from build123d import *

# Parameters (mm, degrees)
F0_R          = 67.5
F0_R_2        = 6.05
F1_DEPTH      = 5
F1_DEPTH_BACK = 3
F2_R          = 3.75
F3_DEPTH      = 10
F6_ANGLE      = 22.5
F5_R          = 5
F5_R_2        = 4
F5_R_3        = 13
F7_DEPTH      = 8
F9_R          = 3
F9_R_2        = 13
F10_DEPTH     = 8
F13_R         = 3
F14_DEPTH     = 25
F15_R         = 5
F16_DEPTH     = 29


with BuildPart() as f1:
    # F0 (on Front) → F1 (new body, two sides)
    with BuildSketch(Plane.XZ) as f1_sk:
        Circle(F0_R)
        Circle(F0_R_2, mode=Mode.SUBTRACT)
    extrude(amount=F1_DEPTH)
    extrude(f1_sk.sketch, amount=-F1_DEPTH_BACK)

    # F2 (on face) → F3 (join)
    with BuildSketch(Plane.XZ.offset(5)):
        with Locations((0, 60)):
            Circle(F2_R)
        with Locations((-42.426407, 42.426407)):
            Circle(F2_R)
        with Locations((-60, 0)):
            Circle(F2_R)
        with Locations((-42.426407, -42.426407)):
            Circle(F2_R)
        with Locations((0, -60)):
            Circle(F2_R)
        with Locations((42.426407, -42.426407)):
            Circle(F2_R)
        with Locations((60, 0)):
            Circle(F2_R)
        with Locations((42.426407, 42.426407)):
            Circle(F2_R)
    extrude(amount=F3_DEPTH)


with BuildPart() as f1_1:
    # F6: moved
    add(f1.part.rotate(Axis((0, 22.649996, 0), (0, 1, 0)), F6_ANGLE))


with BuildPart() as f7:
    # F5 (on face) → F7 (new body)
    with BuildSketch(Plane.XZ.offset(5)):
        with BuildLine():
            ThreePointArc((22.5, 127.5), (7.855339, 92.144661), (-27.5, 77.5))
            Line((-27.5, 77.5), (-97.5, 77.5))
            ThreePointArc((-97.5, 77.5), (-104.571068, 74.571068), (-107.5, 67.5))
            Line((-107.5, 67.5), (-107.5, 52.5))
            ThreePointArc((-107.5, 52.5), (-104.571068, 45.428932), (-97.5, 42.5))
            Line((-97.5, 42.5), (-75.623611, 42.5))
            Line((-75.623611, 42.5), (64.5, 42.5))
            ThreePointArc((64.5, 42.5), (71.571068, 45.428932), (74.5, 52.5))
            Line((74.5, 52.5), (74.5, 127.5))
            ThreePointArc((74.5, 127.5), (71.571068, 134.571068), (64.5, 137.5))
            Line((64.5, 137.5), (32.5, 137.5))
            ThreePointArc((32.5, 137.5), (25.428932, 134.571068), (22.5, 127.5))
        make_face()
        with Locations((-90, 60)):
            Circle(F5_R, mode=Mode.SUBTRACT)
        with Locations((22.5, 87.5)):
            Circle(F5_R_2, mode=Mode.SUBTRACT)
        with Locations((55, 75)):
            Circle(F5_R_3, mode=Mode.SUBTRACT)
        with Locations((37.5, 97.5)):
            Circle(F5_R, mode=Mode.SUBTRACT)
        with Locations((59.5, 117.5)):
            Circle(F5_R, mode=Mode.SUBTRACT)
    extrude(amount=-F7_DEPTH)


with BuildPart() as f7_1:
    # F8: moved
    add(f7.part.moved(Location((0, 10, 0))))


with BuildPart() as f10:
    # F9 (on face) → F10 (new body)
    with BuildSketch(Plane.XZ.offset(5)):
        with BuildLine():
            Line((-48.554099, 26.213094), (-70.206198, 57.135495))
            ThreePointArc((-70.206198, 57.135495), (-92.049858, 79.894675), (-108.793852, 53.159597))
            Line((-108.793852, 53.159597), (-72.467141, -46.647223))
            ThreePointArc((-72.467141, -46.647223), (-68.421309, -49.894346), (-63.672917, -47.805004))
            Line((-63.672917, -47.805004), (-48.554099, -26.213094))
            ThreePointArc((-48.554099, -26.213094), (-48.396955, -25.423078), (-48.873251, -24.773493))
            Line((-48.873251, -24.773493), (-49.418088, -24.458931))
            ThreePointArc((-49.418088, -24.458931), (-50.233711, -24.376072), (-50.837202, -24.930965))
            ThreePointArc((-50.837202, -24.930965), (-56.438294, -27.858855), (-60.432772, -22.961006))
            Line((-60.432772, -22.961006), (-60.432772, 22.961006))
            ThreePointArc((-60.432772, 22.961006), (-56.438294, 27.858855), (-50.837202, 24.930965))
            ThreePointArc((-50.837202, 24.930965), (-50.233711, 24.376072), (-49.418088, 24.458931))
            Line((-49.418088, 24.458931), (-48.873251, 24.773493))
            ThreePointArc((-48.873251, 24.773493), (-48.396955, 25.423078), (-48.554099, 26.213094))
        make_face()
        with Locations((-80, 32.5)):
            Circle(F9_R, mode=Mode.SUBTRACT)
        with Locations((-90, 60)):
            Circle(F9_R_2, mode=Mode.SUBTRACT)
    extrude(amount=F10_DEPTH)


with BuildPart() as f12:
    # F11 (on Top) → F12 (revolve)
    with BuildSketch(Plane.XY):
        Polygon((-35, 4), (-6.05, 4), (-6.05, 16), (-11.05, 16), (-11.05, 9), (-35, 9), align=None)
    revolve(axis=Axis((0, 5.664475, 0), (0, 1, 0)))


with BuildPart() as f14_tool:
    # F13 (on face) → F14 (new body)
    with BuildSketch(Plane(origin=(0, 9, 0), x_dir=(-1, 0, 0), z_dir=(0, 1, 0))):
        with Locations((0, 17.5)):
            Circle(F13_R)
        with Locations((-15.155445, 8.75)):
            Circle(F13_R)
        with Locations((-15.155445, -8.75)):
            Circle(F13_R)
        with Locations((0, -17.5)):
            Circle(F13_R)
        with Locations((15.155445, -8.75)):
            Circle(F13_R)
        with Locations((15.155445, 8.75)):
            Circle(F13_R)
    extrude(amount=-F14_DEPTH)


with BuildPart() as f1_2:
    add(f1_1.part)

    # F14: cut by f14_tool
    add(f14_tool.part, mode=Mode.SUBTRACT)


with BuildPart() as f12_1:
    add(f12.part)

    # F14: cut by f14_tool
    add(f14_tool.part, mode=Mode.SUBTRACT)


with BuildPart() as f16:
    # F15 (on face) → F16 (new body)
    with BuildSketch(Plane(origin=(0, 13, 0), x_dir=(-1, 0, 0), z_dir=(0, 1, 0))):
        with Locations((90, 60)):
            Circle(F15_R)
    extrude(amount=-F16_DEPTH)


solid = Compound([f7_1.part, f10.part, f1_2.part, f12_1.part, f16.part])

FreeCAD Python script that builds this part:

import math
import FreeCAD as App
import Part
import Sketcher

V = App.Vector
Q = App.Units.Quantity

doc = App.newDocument("Part")
body = doc.addObject("PartDesign::Body", "Body")

# Sketch on XZ plane
sketch1 = body.newObject("Sketcher::SketchObject", "Sketch")
sketch1.AttachmentSupport = (doc.getObject("XZ_Plane"), [""])
sketch1.MapMode = "FlatFace"
sketch1.addGeometry(Part.Circle(V(0, 0, 0), V(0, 0, 1), 68), False)
sketch1.addGeometry(Part.Circle(V(0, 0, 0), V(0, 0, 1), 6), False)
sketch1.addConstraint(Sketcher.Constraint("Coincident", 0, 3, -1, 1))
sketch1.addConstraint(Sketcher.Constraint("Coincident", 1, 3, -1, 1))
sketch1.addConstraint(Sketcher.Constraint("Diameter", 0, 135.0))
sketch1.addConstraint(Sketcher.Constraint("Diameter", 1, 12.1))
pad1 = body.newObject("PartDesign::Pad", "Pad")
pad1.Profile = sketch1
pad1.Type = "TwoLengths"
pad1.Length = 5
pad1.Length2 = 3

# Sketch on XZ plane
sketch2 = body.newObject("Sketcher::SketchObject", "Sketch001")
sketch2.AttachmentSupport = (doc.getObject("XZ_Plane"), [""])
sketch2.MapMode = "FlatFace"
sketch2.AttachmentOffset = App.Placement(V(0, 0, 5), App.Rotation())
sketch2.addGeometry(Part.Circle(V(0, 60, 0), V(0, 0, 1), 3.8), False)
sketch2.addGeometry(Part.Circle(V(-42.4, 42.4, 0), V(0, 0, 1), 3.8), False)
sketch2.addGeometry(Part.Circle(V(-60, 0, 0), V(0, 0, 1), 3.8), False)
sketch2.addGeometry(Part.Circle(V(-42.4, -42.4, 0), V(0, 0, 1), 3.8), False)
sketch2.addGeometry(Part.Circle(V(0, -60, 0), V(0, 0, 1), 3.8), False)
sketch2.addGeometry(Part.Circle(V(42.4, -42.4, 0), V(0, 0, 1), 3.8), False)
sketch2.addGeometry(Part.Circle(V(60, 0, 0), V(0, 0, 1), 3.8), False)
sketch2.addGeometry(Part.Circle(V(42.4, 42.4, 0), V(0, 0, 1), 3.8), False)
sketch2.addConstraint(Sketcher.Constraint("Equal", 0, 1))
sketch2.addConstraint(Sketcher.Constraint("Equal", 1, 2))
sketch2.addConstraint(Sketcher.Constraint("Equal", 2, 3))
sketch2.addConstraint(Sketcher.Constraint("Equal", 3, 4))
sketch2.addConstraint(Sketcher.Constraint("Equal", 4, 5))
sketch2.addConstraint(Sketcher.Constraint("Equal", 5, 6))
sketch2.addConstraint(Sketcher.Constraint("Equal", 6, 7))
sketch2.addConstraint(Sketcher.Constraint("Symmetric", 0, 3, 4, 3, -1, 1))
sketch2.addConstraint(Sketcher.Constraint("Symmetric", 1, 3, 5, 3, -1, 1))
sketch2.addConstraint(Sketcher.Constraint("Symmetric", 2, 3, 6, 3, -1, 1))
sketch2.addConstraint(Sketcher.Constraint("Symmetric", 3, 3, 7, 3, -1, 1))
sketch2.addConstraint(Sketcher.Constraint("Symmetric", 3, 3, 5, 3, -2))
sketch2.addConstraint(Sketcher.Constraint("PointOnObject", 0, 3, -2))
sketch2.addConstraint(Sketcher.Constraint("PointOnObject", 2, 3, -1))
sketch2.addConstraint(Sketcher.Constraint("Diameter", 0, 7.5))
sketch2.addConstraint(Sketcher.Constraint("DistanceY", -1, 1, 0, 3, 60.0))
sketch2.addConstraint(Sketcher.Constraint("DistanceX", 2, 3, -1, 1, 60.0))
sketch2.addConstraint(Sketcher.Constraint("DistanceX", 1, 3, -1, 1, 42.426407))
sketch2.addConstraint(Sketcher.Constraint("DistanceY", -1, 1, 1, 3, 42.426407))
pad2 = body.newObject("PartDesign::Pad", "Pad001")
pad2.Profile = sketch2
pad2.Length = 10
body2 = doc.addObject("PartDesign::Body", "Body001")
doc.recompute()

body.Placement = App.Placement(V(0, 0, 0), App.Rotation(V(0, 1, 0), 22.5))
boolean = body2.newObject("PartDesign::Boolean", "Boolean")
boolean.Type = "Fuse"
boolean.addObjects([body])
body3 = doc.addObject("PartDesign::Body", "Body002")

# Sketch on XZ plane
sketch3 = body3.newObject("Sketcher::SketchObject", "Sketch002")
sketch3.AttachmentSupport = (doc.getObject("XZ_Plane002"), [""])
sketch3.MapMode = "FlatFace"
sketch3.AttachmentOffset = App.Placement(V(0, 0, 5), App.Rotation())
sketch3.addGeometry(Part.ArcOfCircle(Part.Circle(V(-27.5, 127.5, 0), V(0, 0, 1), 50), math.radians(-90), math.radians(0)), False)
sketch3.addGeometry(Part.LineSegment(V(-27.5, 77.5, 0), V(-97.5, 77.5, 0)), False)
sketch3.addGeometry(Part.ArcOfCircle(Part.Circle(V(-97.5, 67.5, 0), V(0, 0, 1), 10), math.radians(90), math.radians(180)), False)
sketch3.addGeometry(Part.LineSegment(V(-107.5, 67.5, 0), V(-107.5, 52.5, 0)), False)
sketch3.addGeometry(Part.ArcOfCircle(Part.Circle(V(-97.5, 52.5, 0), V(0, 0, 1), 10), math.radians(180), math.radians(270)), False)
sketch3.addGeometry(Part.LineSegment(V(-97.5, 42.5, 0), V(64.5, 42.5, 0)), False)
sketch3.addGeometry(Part.ArcOfCircle(Part.Circle(V(64.5, 52.5, 0), V(0, 0, 1), 10), math.radians(-90), math.radians(0)), False)
sketch3.addGeometry(Part.LineSegment(V(74.5, 52.5, 0), V(74.5, 127.5, 0)), False)
sketch3.addGeometry(Part.ArcOfCircle(Part.Circle(V(64.5, 127.5, 0), V(0, 0, 1), 10), math.radians(0), math.radians(90)), False)
sketch3.addGeometry(Part.LineSegment(V(64.5, 137.5, 0), V(32.5, 137.5, 0)), False)
sketch3.addGeometry(Part.ArcOfCircle(Part.Circle(V(32.5, 127.5, 0), V(0, 0, 1), 10), math.radians(90), math.radians(180)), False)
sketch3.addGeometry(Part.Circle(V(-90, 60, 0), V(0, 0, 1), 5), False)
sketch3.addGeometry(Part.Circle(V(22.5, 87.5, 0), V(0, 0, 1), 4), False)
sketch3.addGeometry(Part.Circle(V(55, 75, 0), V(0, 0, 1), 13), False)
sketch3.addGeometry(Part.Circle(V(37.5, 97.5, 0), V(0, 0, 1), 5), False)
sketch3.addGeometry(Part.Circle(V(59.5, 117.5, 0), V(0, 0, 1), 5), False)
sketch3.addConstraint(Sketcher.Constraint("Tangent", 0, 1, 1, 1))
sketch3.addConstraint(Sketcher.Constraint("Tangent", 1, 2, 2, 1))
sketch3.addConstraint(Sketcher.Constraint("Tangent", 2, 2, 3, 1))
sketch3.addConstraint(Sketcher.Constraint("Tangent", 3, 2, 4, 1))
sketch3.addConstraint(Sketcher.Constraint("Tangent", 4, 2, 5, 1))
sketch3.addConstraint(Sketcher.Constraint("Tangent", 5, 2, 6, 1))
sketch3.addConstraint(Sketcher.Constraint("Tangent", 6, 2, 7, 1))
sketch3.addConstraint(Sketcher.Constraint("Tangent", 7, 2, 8, 1))
sketch3.addConstraint(Sketcher.Constraint("Tangent", 8, 2, 9, 1))
sketch3.addConstraint(Sketcher.Constraint("Tangent", 9, 2, 10, 1))
sketch3.addConstraint(Sketcher.Constraint("Tangent", 10, 2, 0, 2))
sketch3.addConstraint(Sketcher.Constraint("Horizontal", 1))
sketch3.addConstraint(Sketcher.Constraint("Vertical", 3))
sketch3.addConstraint(Sketcher.Constraint("Horizontal", 5))
sketch3.addConstraint(Sketcher.Constraint("Vertical", 7))
sketch3.addConstraint(Sketcher.Constraint("Horizontal", 9))
sketch3.addConstraint(Sketcher.Constraint("Equal", 2, 4))
sketch3.addConstraint(Sketcher.Constraint("Equal", 4, 6))
sketch3.addConstraint(Sketcher.Constraint("Equal", 6, 8))
sketch3.addConstraint(Sketcher.Constraint("Equal", 8, 10))
sketch3.addConstraint(Sketcher.Constraint("Equal", 11, 14))
sketch3.addConstraint(Sketcher.Constraint("Equal", 14, 15))
sketch3.addConstraint(Sketcher.Constraint("Horizontal", 0, 3, 8, 3))
sketch3.addConstraint(Sketcher.Constraint("Vertical", 12, 3, 10, 2))
sketch3.addConstraint(Sketcher.Constraint("Diameter", 11, 10.0))
sketch3.addConstraint(Sketcher.Constraint("Diameter", 12, 8.0))
sketch3.addConstraint(Sketcher.Constraint("Diameter", 13, 26.0))
sketch3.addConstraint(Sketcher.Constraint("Radius", 0, 50.0))
sketch3.addConstraint(Sketcher.Constraint("Radius", 2, 9.999999))
sketch3.addConstraint(Sketcher.Constraint("DistanceX", 1, 2, 1, 1, 70.0))
sketch3.addConstraint(Sketcher.Constraint("DistanceX", 5, 1, 5, 2, 162.0))
sketch3.addConstraint(Sketcher.Constraint("DistanceY", 3, 2, 3, 1, 15.0))
sketch3.addConstraint(Sketcher.Constraint("DistanceX", 11, 3, -1, 1, 90.0))
sketch3.addConstraint(Sketcher.Constraint("DistanceY", -1, 1, 11, 3, 60.0))
sketch3.addConstraint(Sketcher.Constraint("DistanceX", -1, 1, 13, 3, 55.0))
sketch3.addConstraint(Sketcher.Constraint("DistanceY", -1, 1, 13, 3, 75.0))
sketch3.addConstraint(Sketcher.Constraint("DistanceY", 12, 3, 10, 3, 40.000001))
sketch3.addConstraint(Sketcher.Constraint("DistanceX", 12, 3, 14, 3, 15.0))
sketch3.addConstraint(Sketcher.Constraint("DistanceY", 12, 3, 14, 3, 10.0))
sketch3.addConstraint(Sketcher.Constraint("DistanceX", 15, 3, 8, 3, 5.000001))
sketch3.addConstraint(Sketcher.Constraint("DistanceY", 15, 3, 8, 3, 10.000001))
sketch3.addConstraint(Sketcher.Constraint("DistanceX", 0, 3, -1, 1, 27.5))
sketch3.addConstraint(Sketcher.Constraint("DistanceY", -1, 1, 0, 3, 127.5))
pad3 = body3.newObject("PartDesign::Pad", "Pad002")
pad3.Profile = sketch3
pad3.Length = 8
pad3.Reversed = True
body4 = doc.addObject("PartDesign::Body", "Body003")
doc.recompute()

body3.Placement = App.Placement(V(0, 10, 0), App.Rotation(V(0, 0, 1), 0))
boolean2 = body4.newObject("PartDesign::Boolean", "Boolean001")
boolean2.Type = "Fuse"
boolean2.addObjects([body3])
body5 = doc.addObject("PartDesign::Body", "Body004")

# Sketch on XZ plane
sketch4 = body5.newObject("Sketcher::SketchObject", "Sketch003")
sketch4.AttachmentSupport = (doc.getObject("XZ_Plane004"), [""])
sketch4.MapMode = "FlatFace"
sketch4.AttachmentOffset = App.Placement(V(0, 0, 5), App.Rotation())
sketch4.addGeometry(Part.LineSegment(V(-48.6, 26.2, 0), V(-70.2, 57.1, 0)), False)
sketch4.addGeometry(Part.ArcOfCircle(Part.Circle(V(-90, 60, 0), V(0, 0, 1), 20), math.radians(-8), math.radians(200)), False)
sketch4.addGeometry(Part.LineSegment(V(-108.8, 53.2, 0), V(-72.5, -46.6, 0)), False)
sketch4.addGeometry(Part.ArcOfCircle(Part.Circle(V(-67.8, -44.9, 0), V(0, 0, 1), 5), math.radians(-160), math.radians(-35)), False)
sketch4.addGeometry(Part.LineSegment(V(-63.7, -47.8, 0), V(-48.6, -26.2, 0)), False)
sketch4.addGeometry(Part.ArcOfCircle(Part.Circle(V(-49.4, -25.6, 0), V(0, 0, 1), 1), math.radians(-35), math.radians(60)), False)
sketch4.addGeometry(Part.LineSegment(V(-48.9, -24.8, 0), V(-49.4, -24.5, 0)), False)
sketch4.addGeometry(Part.ArcOfCircle(Part.Circle(V(-49.9, -25.3, 0), V(0, 0, 1), 1), math.radians(60), math.radians(157)), False)
sketch4.addGeometry(Part.ArcOfCircle(Part.Circle(V(-55.4, -23, 0), V(0, 0, 1), 5), math.radians(-180), math.radians(-23)), False)
sketch4.addGeometry(Part.LineSegment(V(-60.4, -23, 0), V(-60.4, 23, 0)), False)
sketch4.addGeometry(Part.ArcOfCircle(Part.Circle(V(-55.4, 23, 0), V(0, 0, 1), 5), math.radians(23), math.radians(180)), False)
sketch4.addGeometry(Part.ArcOfCircle(Part.Circle(V(-49.9, 25.3, 0), V(0, 0, 1), 1), math.radians(-157), math.radians(-60)), False)
sketch4.addGeometry(Part.LineSegment(V(-49.4, 24.5, 0), V(-48.9, 24.8, 0)), False)
sketch4.addGeometry(Part.ArcOfCircle(Part.Circle(V(-49.4, 25.6, 0), V(0, 0, 1), 1), math.radians(-60), math.radians(35)), False)
sketch4.addGeometry(Part.Circle(V(-80, 32.5, 0), V(0, 0, 1), 3), False)
sketch4.addGeometry(Part.Circle(V(-90, 60, 0), V(0, 0, 1), 13), False)
sketch4.addConstraint(Sketcher.Constraint("Coincident", 0, 2, 1, 1))
sketch4.addConstraint(Sketcher.Constraint("Tangent", 1, 2, 2, 1))
sketch4.addConstraint(Sketcher.Constraint("Tangent", 2, 2, 3, 1))
sketch4.addConstraint(Sketcher.Constraint("Tangent", 3, 2, 4, 1))
sketch4.addConstraint(Sketcher.Constraint("Tangent", 4, 2, 5, 1))
sketch4.addConstraint(Sketcher.Constraint("Tangent", 5, 2, 6, 1))
sketch4.addConstraint(Sketcher.Constraint("Tangent", 6, 2, 7, 1))
sketch4.addConstraint(Sketcher.Constraint("Tangent", 7, 2, 8, 2))
sketch4.addConstraint(Sketcher.Constraint("Tangent", 8, 1, 9, 1))
sketch4.addConstraint(Sketcher.Constraint("Tangent", 9, 2, 10, 2))
sketch4.addConstraint(Sketcher.Constraint("Tangent", 10, 1, 11, 1))
sketch4.addConstraint(Sketcher.Constraint("Tangent", 11, 2, 12, 1))
sketch4.addConstraint(Sketcher.Constraint("Tangent", 12, 2, 13, 1))
sketch4.addConstraint(Sketcher.Constraint("Tangent", 13, 2, 0, 1))
sketch4.addConstraint(Sketcher.Constraint("Vertical", 9))
sketch4.addConstraint(Sketcher.Constraint("Coincident", 15, 3, 1, 3))
sketch4.addConstraint(Sketcher.Constraint("Equal", 5, 7))
sketch4.addConstraint(Sketcher.Constraint("Equal", 3, 8))
sketch4.addConstraint(Sketcher.Constraint("Equal", 8, 10))
sketch4.addConstraint(Sketcher.Constraint("Equal", 7, 11))
sketch4.addConstraint(Sketcher.Constraint("Equal", 11, 13))
sketch4.addConstraint(Sketcher.Constraint("Symmetric", 7, 3, 11, 3, -1))
sketch4.addConstraint(Sketcher.Constraint("Symmetric", 5, 3, 13, 3, -1))
sketch4.addConstraint(Sketcher.Constraint("Vertical", 4, 2, 13, 2))
sketch4.addConstraint(Sketcher.Constraint("Diameter", 14, 6.0))
sketch4.addConstraint(Sketcher.Constraint("Diameter", 15, 26.0))
sketch4.addConstraint(Sketcher.Constraint("Radius", 1, 20.0))
sketch4.addConstraint(Sketcher.Constraint("Radius", 3, 5.000001))
sketch4.addConstraint(Sketcher.Constraint("Radius", 5, 0.999999))
sketch4.addConstraint(Sketcher.Constraint("Angle", 0, Q("125.000001 deg")))
sketch4.addConstraint(Sketcher.Constraint("Angle", 2, Q("-70 deg")))
sketch4.addConstraint(Sketcher.Constraint("Angle", 6, Q("149.999983 deg")))
sketch4.addConstraint(Sketcher.Constraint("DistanceX", 1, 3, -1, 1, 90.0))
sketch4.addConstraint(Sketcher.Constraint("DistanceY", -1, 1, 1, 3, 60.0))
sketch4.addConstraint(Sketcher.Constraint("DistanceX", 14, 3, -1, 1, 80.0))
sketch4.addConstraint(Sketcher.Constraint("DistanceY", -1, 1, 14, 3, 32.5))
sketch4.addConstraint(Sketcher.Constraint("DistanceY", 3, 2, 8, 3, 24.843998))
sketch4.addConstraint(Sketcher.Constraint("Distance", 2, 106.212199))
sketch4.addConstraint(Sketcher.Constraint("DistanceX", 4, 2, -1, 1, 48.554099))
sketch4.addConstraint(Sketcher.Constraint("DistanceX", 10, 1, -1, 1, 50.837202))
pad4 = body5.newObject("PartDesign::Pad", "Pad003")
pad4.Profile = sketch4
pad4.Length = 8
body6 = doc.addObject("PartDesign::Body", "Body005")

# Sketch on XY plane
sketch5 = body6.newObject("Sketcher::SketchObject", "Sketch004")
sketch5.AttachmentSupport = (doc.getObject("XY_Plane005"), [""])
sketch5.MapMode = "FlatFace"
sketch5.addGeometry(Part.LineSegment(V(-35, 4, 0), V(-6, 4, 0)), False)
sketch5.addGeometry(Part.LineSegment(V(-6, 4, 0), V(-6, 16, 0)), False)
sketch5.addGeometry(Part.LineSegment(V(-6, 16, 0), V(-11, 16, 0)), False)
sketch5.addGeometry(Part.LineSegment(V(-11, 16, 0), V(-11, 9, 0)), False)
sketch5.addGeometry(Part.LineSegment(V(-11, 9, 0), V(-35, 9, 0)), False)
sketch5.addGeometry(Part.LineSegment(V(-35, 9, 0), V(-35, 4, 0)), False)
sketch5.addConstraint(Sketcher.Constraint("Coincident", 0, 2, 1, 1))
sketch5.addConstraint(Sketcher.Constraint("Coincident", 1, 2, 2, 1))
sketch5.addConstraint(Sketcher.Constraint("Coincident", 2, 2, 3, 1))
sketch5.addConstraint(Sketcher.Constraint("Coincident", 3, 2, 4, 1))
sketch5.addConstraint(Sketcher.Constraint("Coincident", 4, 2, 5, 1))
sketch5.addConstraint(Sketcher.Constraint("Coincident", 5, 2, 0, 1))
sketch5.addConstraint(Sketcher.Constraint("Horizontal", 0))
sketch5.addConstraint(Sketcher.Constraint("Vertical", 1))
sketch5.addConstraint(Sketcher.Constraint("Horizontal", 2))
sketch5.addConstraint(Sketcher.Constraint("Vertical", 3))
sketch5.addConstraint(Sketcher.Constraint("Horizontal", 4))
sketch5.addConstraint(Sketcher.Constraint("Vertical", 5))
sketch5.addConstraint(Sketcher.Constraint("Equal", 2, 5))
sketch5.addConstraint(Sketcher.Constraint("DistanceX", 2, 2, 2, 1, 5.0))
sketch5.addConstraint(Sketcher.Constraint("DistanceY", 1, 1, 1, 2, 12.0))
sketch5.addConstraint(Sketcher.Constraint("DistanceY", -1, 1, 0, 2, 4.0))
sketch5.addConstraint(Sketcher.Constraint("DistanceX", 4, 2, -1, 1, 35.0))
sketch5.addConstraint(Sketcher.Constraint("DistanceX", 0, 1, 0, 2, 28.95))
revolution = body6.newObject("PartDesign::Revolution", "Revolution")
revolution.Profile = sketch5
revolution.ReferenceAxis = (sketch5, ["V_Axis"])
revolution.Angle = 360
body7 = doc.addObject("PartDesign::Body", "Body006")
body7.AllowCompound = True

# Sketch on XZ plane
sketch6 = body7.newObject("Sketcher::SketchObject", "Sketch005")
sketch6.AttachmentSupport = (doc.getObject("XZ_Plane006"), [""])
sketch6.MapMode = "FlatFace"
sketch6.AttachmentOffset = App.Placement(V(0, 0, -9), App.Rotation())
sketch6.addGeometry(Part.Circle(V(0, 17.5, 0), V(0, 0, 1), 3), False)
sketch6.addGeometry(Part.Circle(V(15.2, 8.8, 0), V(0, 0, 1), 3), False)
sketch6.addGeometry(Part.Circle(V(15.2, -8.8, 0), V(0, 0, 1), 3), False)
sketch6.addGeometry(Part.Circle(V(0, -17.5, 0), V(0, 0, 1), 3), False)
sketch6.addGeometry(Part.Circle(V(-15.2, -8.8, 0), V(0, 0, 1), 3), False)
sketch6.addGeometry(Part.Circle(V(-15.2, 8.8, 0), V(0, 0, 1), 3), False)
sketch6.addConstraint(Sketcher.Constraint("Equal", 0, 1))
sketch6.addConstraint(Sketcher.Constraint("Equal", 1, 2))
sketch6.addConstraint(Sketcher.Constraint("Equal", 2, 3))
sketch6.addConstraint(Sketcher.Constraint("Equal", 3, 4))
sketch6.addConstraint(Sketcher.Constraint("Equal", 4, 5))
sketch6.addConstraint(Sketcher.Constraint("Symmetric", 0, 3, 3, 3, -1, 1))
sketch6.addConstraint(Sketcher.Constraint("Symmetric", 1, 3, 4, 3, -1, 1))
sketch6.addConstraint(Sketcher.Constraint("Symmetric", 2, 3, 5, 3, -1, 1))
sketch6.addConstraint(Sketcher.Constraint("Symmetric", 2, 3, 4, 3, -2))
sketch6.addConstraint(Sketcher.Constraint("PointOnObject", 0, 3, -2))
sketch6.addConstraint(Sketcher.Constraint("Diameter", 0, 6.0))
sketch6.addConstraint(Sketcher.Constraint("DistanceY", 3, 3, 0, 3, 35.0))
sketch6.addConstraint(Sketcher.Constraint("DistanceY", 2, 3, 1, 3, 17.5))
sketch6.addConstraint(Sketcher.Constraint("DistanceX", 4, 3, 2, 3, 30.31089))
pad5 = body7.newObject("PartDesign::Pad", "Pad004")
pad5.Profile = sketch6
pad5.Length = 25
doc.recompute()

body8 = doc.addObject("PartDesign::Body", "Body007")
body8.BaseFeature = body7
boolean3 = body2.newObject("PartDesign::Boolean", "Boolean002")
boolean3.Type = "Cut"
boolean3.addObjects([body8])
doc.recompute()

boolean4 = body6.newObject("PartDesign::Boolean", "Boolean003")
boolean4.Type = "Cut"
boolean4.addObjects([body7])
body9 = doc.addObject("PartDesign::Body", "Body008")

# Sketch on XZ plane
sketch7 = body9.newObject("Sketcher::SketchObject", "Sketch006")
sketch7.AttachmentSupport = (doc.getObject("XZ_Plane008"), [""])
sketch7.MapMode = "FlatFace"
sketch7.AttachmentOffset = App.Placement(V(0, 0, -13), App.Rotation())
sketch7.addGeometry(Part.Circle(V(-90, 60, 0), V(0, 0, 1), 5), False)
sketch7.addConstraint(Sketcher.Constraint("Diameter", 0, 10.0))
sketch7.addConstraint(Sketcher.Constraint("DistanceX", 0, 3, -1, 1, 90.0))
sketch7.addConstraint(Sketcher.Constraint("DistanceY", -1, 1, 0, 3, 60.0))
pad6 = body9.newObject("PartDesign::Pad", "Pad005")
pad6.Profile = sketch7
pad6.Length = 29

doc.recompute()
